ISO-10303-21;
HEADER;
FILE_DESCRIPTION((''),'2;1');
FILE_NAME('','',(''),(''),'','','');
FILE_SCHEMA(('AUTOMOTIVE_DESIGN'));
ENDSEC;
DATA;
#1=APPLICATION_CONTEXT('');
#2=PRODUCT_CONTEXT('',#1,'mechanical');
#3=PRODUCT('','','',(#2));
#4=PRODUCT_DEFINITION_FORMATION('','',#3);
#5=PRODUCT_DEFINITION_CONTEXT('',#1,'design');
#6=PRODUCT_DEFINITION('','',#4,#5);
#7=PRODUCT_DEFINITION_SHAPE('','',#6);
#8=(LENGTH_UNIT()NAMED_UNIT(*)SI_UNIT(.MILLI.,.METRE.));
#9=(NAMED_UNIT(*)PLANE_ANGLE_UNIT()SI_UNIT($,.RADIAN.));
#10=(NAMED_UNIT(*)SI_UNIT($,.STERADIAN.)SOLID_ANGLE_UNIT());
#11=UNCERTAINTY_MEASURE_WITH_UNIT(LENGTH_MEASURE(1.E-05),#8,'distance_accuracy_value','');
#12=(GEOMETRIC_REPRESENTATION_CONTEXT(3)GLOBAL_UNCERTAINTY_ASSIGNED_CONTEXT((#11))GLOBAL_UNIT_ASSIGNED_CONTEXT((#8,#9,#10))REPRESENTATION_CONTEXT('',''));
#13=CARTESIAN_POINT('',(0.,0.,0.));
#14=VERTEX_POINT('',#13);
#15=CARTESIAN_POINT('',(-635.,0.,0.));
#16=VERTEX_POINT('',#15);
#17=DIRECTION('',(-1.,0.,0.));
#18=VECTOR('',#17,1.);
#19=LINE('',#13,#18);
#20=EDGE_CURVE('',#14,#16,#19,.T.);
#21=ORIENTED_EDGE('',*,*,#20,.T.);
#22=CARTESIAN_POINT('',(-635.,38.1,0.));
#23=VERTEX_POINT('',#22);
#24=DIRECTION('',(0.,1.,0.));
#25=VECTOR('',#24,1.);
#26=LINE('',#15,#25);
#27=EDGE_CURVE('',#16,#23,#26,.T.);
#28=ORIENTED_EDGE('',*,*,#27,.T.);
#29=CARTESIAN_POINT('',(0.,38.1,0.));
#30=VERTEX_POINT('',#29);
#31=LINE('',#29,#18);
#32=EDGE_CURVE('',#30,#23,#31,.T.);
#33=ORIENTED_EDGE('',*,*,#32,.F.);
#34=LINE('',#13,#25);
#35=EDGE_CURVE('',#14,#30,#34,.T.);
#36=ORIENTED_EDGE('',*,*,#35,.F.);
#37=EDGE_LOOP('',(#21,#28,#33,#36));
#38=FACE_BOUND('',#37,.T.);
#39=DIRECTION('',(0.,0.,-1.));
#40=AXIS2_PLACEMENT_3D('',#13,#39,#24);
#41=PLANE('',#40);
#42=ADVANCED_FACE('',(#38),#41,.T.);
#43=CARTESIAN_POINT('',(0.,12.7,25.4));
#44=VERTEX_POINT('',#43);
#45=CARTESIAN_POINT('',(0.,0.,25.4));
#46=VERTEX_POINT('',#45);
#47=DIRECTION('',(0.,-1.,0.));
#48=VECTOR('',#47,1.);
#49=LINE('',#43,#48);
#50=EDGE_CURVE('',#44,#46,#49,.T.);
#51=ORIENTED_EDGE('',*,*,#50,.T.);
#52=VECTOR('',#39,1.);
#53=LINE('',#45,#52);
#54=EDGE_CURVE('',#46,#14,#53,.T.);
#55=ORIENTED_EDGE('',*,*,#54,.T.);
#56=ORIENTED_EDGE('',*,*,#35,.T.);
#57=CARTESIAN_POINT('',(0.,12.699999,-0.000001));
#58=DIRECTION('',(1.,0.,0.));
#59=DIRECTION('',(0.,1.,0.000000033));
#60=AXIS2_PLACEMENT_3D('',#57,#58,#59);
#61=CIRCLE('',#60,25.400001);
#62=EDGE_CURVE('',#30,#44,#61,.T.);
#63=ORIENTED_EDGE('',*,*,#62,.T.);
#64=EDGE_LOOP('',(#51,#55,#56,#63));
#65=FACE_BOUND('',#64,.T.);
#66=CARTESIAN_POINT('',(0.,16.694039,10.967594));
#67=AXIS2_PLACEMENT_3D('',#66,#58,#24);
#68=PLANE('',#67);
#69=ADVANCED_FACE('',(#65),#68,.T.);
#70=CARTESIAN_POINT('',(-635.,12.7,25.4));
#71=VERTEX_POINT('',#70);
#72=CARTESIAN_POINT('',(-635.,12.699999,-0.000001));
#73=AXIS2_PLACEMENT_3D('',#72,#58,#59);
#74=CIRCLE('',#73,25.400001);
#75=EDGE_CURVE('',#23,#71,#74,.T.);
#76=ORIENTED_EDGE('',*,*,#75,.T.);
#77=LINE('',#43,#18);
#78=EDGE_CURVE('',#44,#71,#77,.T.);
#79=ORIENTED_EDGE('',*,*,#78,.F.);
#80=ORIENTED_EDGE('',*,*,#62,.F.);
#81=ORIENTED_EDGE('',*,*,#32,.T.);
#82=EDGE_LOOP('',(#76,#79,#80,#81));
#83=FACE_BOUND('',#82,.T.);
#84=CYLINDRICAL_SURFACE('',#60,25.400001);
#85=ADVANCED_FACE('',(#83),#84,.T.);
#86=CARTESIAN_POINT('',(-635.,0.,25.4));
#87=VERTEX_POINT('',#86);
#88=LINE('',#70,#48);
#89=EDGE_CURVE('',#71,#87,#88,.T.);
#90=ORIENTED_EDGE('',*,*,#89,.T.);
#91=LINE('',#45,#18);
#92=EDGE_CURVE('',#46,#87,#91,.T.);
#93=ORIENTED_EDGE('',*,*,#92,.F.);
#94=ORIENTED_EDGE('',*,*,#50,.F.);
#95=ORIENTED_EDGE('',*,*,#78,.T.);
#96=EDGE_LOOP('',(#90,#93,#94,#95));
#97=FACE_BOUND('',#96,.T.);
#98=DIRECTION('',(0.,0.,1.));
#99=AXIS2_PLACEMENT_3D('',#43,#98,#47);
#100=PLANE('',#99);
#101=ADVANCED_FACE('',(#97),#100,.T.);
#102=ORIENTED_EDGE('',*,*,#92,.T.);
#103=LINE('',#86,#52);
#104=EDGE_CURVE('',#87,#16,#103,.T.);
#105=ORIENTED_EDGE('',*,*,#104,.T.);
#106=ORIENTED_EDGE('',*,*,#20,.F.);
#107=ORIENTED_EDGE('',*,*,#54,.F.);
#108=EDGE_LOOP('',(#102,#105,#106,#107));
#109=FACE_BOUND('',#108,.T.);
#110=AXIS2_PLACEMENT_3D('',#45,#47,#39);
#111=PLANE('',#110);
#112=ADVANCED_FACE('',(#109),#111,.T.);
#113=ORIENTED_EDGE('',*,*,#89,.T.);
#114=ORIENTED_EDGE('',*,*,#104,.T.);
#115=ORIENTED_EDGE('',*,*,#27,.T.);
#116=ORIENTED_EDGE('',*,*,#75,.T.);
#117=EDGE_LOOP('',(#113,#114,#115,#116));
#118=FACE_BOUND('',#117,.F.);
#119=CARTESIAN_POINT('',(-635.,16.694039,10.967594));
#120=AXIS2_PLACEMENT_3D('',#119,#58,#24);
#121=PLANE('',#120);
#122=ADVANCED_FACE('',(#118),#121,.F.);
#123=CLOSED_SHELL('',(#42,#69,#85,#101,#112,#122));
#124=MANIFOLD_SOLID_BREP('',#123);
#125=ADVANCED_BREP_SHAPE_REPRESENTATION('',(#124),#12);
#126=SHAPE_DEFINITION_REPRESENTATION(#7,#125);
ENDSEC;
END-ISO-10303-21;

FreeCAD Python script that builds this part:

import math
import FreeCAD as App
import Part
import Sketcher

V = App.Vector
Q = App.Units.Quantity

doc = App.newDocument("Part")
body = doc.addObject("PartDesign::Body", "Body")

# Sketch on YZ plane
sketch1 = body.newObject("Sketcher::SketchObject", "Sketch")
sketch1.AttachmentSupport = (doc.getObject("YZ_Plane"), [""])
sketch1.MapMode = "FlatFace"
sketch1.addGeometry([
    Part.LineSegment(V(0, 25.4, 0), V(0, 0, 0)),
    Part.LineSegment(V(0, 0, 0), V(38.1, 0, 0)),
    Part.ArcOfCircle(Part.Circle(V(12.699999, -0.000001, 0), V(0, 0, 1), 25.400001), math.radians(0.000002), math.radians(89.999998)),
    Part.LineSegment(V(12.7, 25.4, 0), V(0, 25.4, 0)),
], False)
sketch1.addConstraint([
    Sketcher.Constraint("Coincident", 0, 2, 1, 1),
    Sketcher.Constraint("Coincident", 1, 2, 2, 1),
    Sketcher.Constraint("Tangent", 2, 2, 3, 1),
    Sketcher.Constraint("Coincident", 3, 2, 0, 1),
    Sketcher.Constraint("Vertical", 0),
    Sketcher.Constraint("Horizontal", 1),
    Sketcher.Constraint("Horizontal", 3),
    Sketcher.Constraint("Coincident", 0, 2, -1, 1),
    Sketcher.Constraint("PointOnObject", 2, 3, -1),
    Sketcher.Constraint("Radius", 2, Q("1 in")),
    Sketcher.Constraint("DistanceX", 1, 1, 1, 2, Q("1.5 in")),
])
pad1 = body.newObject("PartDesign::Pad", "Pad")
pad1.Profile = sketch1
pad1.Length = Q("25 in")
pad1.Reversed = True

doc.recompute()
